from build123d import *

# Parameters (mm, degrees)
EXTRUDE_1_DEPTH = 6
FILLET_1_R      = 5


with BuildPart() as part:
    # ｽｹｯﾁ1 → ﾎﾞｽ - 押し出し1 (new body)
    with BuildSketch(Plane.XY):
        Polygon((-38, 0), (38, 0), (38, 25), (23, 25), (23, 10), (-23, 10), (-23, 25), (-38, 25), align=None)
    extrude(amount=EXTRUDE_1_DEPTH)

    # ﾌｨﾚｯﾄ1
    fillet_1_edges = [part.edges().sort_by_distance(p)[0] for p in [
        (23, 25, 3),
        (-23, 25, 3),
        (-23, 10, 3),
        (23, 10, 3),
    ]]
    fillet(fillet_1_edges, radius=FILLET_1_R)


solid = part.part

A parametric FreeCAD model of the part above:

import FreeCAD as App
import Part
import Sketcher

V = App.Vector
Q = App.Units.Quantity


def edges_at(feature, points):
    """Names of the edges that pass closest to the given points."""
    edges = feature.Shape.Edges
    near = lambda p: min(range(len(edges)), key=lambda i: edges[i].distToShape(Part.Vertex(*p))[0])
    return sorted({f"Edge{near(p) + 1}" for p in points})


def add_polygon(sketch, points):
    """Adds a closed chain of lines whose ends are joined by coincident constraints."""
    first, n = sketch.GeometryCount, len(points)
    for a, b in zip(points, points[1:] + points[:1]):
        sketch.addGeometry(Part.LineSegment(App.Vector(*a, 0), App.Vector(*b, 0)), False)
    for i in range(n):
        sketch.addConstraint(Sketcher.Constraint("Coincident", first + i, 2, first + (i + 1) % n, 1))

doc = App.newDocument("Part")
params = doc.addObject("Spreadsheet::Sheet", "Params")
for row, (alias, value) in enumerate([
    ("sketch1_width", "76 mm"),
    ("sketch1_width2", "15 mm"),
    ("sketch1_height", "25 mm"),
    ("pad1_length", "6 mm"),
    ("fillet_radius", "5 mm"),
], start=1):
    params.set(f"A{row}", alias)
    params.set(f"B{row}", "=" + value)
    params.setAlias(f"B{row}", alias)

body = doc.addObject("PartDesign::Body", "Body")

sketch1 = body.newObject("Sketcher::SketchObject", "Sketch")
sketch1.AttachmentSupport = (doc.getObject("XY_Plane"), [""])
sketch1.MapMode = "FlatFace"
add_polygon(sketch1, [(-38, 0), (38, 0), (38, 25), (23, 25), (23, 10), (-23, 10), (-23, 25), (-38, 25)])
sketch1.addConstraint([
    Sketcher.Constraint("Horizontal", 0),
    Sketcher.Constraint("Vertical", 1),
    Sketcher.Constraint("Horizontal", 2),
    Sketcher.Constraint("Vertical", 3),
    Sketcher.Constraint("Horizontal", 4),
    Sketcher.Constraint("Vertical", 5),
    Sketcher.Constraint("Horizontal", 6),
    Sketcher.Constraint("Vertical", 7),
    Sketcher.Constraint("Symmetric", 0, 2, 7, 2, -1, 1),
    Sketcher.Constraint("Symmetric", 2, 2, 5, 2, -2),
    Sketcher.Constraint("Equal", 6, 3),
    Sketcher.Constraint("DistanceX", 0, 1, 0, 2, Q("76 mm")),
    Sketcher.Constraint("DistanceX", 2, 2, 2, 1, Q("15 mm")),
    Sketcher.Constraint("DistanceY", 1, 1, 1, 2, Q("25 mm")),
])
sketch1.setExpression("Constraints[19]", "Params.sketch1_width")
sketch1.setExpression("Constraints[20]", "Params.sketch1_width2")
sketch1.setExpression("Constraints[21]", "Params.sketch1_height")
pad1 = body.newObject("PartDesign::Pad", "Pad")
pad1.Profile = sketch1
pad1.setExpression("Length", "Params.pad1_length")
doc.recompute()

fillet = body.newObject("PartDesign::Fillet", "Fillet")
fillet.Base = (pad1, edges_at(pad1, [
    (23, 25, 3),
    (-23, 25, 3),
    (-23, 10, 3),
    (23, 10, 3),
]))
fillet.setExpression("Radius", "Params.fillet_radius")

doc.recompute()
